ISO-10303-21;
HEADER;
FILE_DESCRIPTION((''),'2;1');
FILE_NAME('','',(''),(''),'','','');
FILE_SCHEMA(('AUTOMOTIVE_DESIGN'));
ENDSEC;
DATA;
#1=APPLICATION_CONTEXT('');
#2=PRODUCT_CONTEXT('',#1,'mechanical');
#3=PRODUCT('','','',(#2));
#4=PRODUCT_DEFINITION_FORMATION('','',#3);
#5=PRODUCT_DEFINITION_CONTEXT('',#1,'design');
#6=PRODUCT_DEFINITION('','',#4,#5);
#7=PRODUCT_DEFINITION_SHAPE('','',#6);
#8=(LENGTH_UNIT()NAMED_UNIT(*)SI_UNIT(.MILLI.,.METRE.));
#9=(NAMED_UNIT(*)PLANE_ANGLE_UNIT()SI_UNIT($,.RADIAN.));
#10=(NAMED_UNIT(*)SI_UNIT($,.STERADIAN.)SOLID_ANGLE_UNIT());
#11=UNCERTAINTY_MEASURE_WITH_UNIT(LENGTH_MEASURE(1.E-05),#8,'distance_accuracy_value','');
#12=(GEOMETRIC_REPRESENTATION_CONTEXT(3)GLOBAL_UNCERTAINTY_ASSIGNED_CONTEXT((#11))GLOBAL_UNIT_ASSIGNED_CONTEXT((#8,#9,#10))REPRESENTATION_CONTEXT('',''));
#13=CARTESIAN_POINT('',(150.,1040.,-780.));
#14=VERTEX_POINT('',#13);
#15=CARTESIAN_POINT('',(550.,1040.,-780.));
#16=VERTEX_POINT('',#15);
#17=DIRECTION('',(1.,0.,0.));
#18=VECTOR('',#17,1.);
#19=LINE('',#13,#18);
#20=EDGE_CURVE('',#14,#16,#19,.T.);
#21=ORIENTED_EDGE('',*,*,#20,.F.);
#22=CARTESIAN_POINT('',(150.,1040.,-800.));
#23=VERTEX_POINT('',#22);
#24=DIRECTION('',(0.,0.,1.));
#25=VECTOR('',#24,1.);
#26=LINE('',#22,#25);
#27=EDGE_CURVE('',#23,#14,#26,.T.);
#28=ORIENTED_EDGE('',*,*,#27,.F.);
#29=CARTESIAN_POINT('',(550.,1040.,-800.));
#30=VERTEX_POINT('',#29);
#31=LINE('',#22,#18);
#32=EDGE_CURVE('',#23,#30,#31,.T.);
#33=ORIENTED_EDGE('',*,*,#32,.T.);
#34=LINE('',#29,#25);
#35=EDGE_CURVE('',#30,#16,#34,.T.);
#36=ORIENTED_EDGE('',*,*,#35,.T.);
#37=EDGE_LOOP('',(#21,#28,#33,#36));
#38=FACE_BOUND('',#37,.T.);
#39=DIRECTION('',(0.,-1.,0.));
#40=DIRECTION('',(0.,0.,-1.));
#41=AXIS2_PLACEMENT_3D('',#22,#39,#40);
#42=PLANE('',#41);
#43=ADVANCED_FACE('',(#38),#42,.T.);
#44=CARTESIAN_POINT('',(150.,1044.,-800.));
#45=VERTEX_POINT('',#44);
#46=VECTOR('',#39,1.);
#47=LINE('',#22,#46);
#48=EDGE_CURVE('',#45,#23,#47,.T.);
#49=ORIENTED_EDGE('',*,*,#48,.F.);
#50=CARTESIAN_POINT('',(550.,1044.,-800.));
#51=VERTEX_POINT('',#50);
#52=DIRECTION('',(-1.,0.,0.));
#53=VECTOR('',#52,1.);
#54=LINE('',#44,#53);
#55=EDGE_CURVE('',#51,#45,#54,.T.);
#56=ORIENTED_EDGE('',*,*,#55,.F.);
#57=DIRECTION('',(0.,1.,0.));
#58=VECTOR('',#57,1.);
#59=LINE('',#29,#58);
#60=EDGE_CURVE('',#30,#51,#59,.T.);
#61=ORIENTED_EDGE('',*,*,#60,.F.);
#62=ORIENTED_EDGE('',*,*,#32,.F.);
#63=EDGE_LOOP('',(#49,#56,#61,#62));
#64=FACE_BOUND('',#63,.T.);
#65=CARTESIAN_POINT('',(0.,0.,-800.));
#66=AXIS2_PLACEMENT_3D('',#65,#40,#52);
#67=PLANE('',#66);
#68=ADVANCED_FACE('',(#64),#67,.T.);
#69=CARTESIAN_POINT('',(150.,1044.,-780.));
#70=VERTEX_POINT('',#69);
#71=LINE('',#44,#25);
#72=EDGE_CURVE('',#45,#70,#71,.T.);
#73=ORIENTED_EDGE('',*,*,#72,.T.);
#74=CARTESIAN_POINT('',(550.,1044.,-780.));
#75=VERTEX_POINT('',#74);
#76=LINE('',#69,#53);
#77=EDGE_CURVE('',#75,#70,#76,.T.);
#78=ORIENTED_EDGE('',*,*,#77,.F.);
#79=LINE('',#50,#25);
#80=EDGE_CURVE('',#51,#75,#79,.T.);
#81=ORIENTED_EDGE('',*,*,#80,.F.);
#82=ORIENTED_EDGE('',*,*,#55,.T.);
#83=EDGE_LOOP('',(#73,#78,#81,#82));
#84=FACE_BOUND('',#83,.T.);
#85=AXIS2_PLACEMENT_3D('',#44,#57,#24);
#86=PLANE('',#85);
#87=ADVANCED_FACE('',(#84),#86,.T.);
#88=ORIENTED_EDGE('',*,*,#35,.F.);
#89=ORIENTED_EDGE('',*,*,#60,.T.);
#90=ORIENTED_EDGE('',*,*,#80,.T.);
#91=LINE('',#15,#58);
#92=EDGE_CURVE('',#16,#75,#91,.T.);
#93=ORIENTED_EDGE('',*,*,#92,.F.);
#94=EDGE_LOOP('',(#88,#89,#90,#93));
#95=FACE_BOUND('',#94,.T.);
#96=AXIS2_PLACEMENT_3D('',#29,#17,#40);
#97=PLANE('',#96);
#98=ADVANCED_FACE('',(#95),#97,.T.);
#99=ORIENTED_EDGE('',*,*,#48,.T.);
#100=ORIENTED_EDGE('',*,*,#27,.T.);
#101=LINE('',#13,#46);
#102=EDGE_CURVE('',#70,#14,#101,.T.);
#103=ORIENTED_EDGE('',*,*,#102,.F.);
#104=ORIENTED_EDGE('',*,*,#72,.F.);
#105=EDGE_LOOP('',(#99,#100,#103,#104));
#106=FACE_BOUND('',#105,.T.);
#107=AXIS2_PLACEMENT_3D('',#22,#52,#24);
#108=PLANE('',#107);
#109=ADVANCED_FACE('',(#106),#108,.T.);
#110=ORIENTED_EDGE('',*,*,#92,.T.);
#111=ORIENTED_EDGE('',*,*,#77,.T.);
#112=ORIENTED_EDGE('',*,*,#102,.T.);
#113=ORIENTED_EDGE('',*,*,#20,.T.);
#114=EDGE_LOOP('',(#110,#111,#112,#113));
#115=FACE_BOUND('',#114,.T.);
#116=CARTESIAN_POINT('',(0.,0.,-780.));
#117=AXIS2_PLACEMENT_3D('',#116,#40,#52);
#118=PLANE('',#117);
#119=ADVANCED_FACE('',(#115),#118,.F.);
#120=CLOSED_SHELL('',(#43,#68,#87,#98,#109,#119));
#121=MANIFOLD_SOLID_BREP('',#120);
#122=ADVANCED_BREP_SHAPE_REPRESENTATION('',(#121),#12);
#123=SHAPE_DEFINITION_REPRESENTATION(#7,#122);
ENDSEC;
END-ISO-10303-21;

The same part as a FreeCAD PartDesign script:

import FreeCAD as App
import Part
import Sketcher

V = App.Vector
Q = App.Units.Quantity


def add_polygon(sketch, points):
    """Adds a closed chain of lines whose ends are joined by coincident constraints."""
    first, n = sketch.GeometryCount, len(points)
    for a, b in zip(points, points[1:] + points[:1]):
        sketch.addGeometry(Part.LineSegment(App.Vector(*a, 0), App.Vector(*b, 0)), False)
    for i in range(n):
        sketch.addConstraint(Sketcher.Constraint("Coincident", first + i, 2, first + (i + 1) % n, 1))

doc = App.newDocument("Part")
body = doc.addObject("PartDesign::Body", "Body")

# Sketch on XY plane
sketch1 = body.newObject("Sketcher::SketchObject", "Sketch")
sketch1.AttachmentSupport = (doc.getObject("XY_Plane"), [""])
sketch1.MapMode = "FlatFace"
sketch1.AttachmentOffset = App.Placement(V(0, 0, -780), App.Rotation())
add_polygon(sketch1, [(150, 1044), (150, 1040), (550, 1040), (550, 1044)])  # lines 0-3
sketch1.addConstraint(Sketcher.Constraint("Vertical", 0))
sketch1.addConstraint(Sketcher.Constraint("Horizontal", 1))
sketch1.addConstraint(Sketcher.Constraint("Vertical", 2))
sketch1.addConstraint(Sketcher.Constraint("Horizontal", 3))
sketch1.addConstraint(Sketcher.Constraint("DistanceX", 1, 1, 1, 2, Q("400 mm")))
sketch1.addConstraint(Sketcher.Constraint("DistanceY", 0, 2, 0, 1, Q("4 mm")))
sketch1.addConstraint(Sketcher.Constraint("DistanceX", -1, 1, 0, 2, Q("150 mm")))
sketch1.addConstraint(Sketcher.Constraint("DistanceY", -1, 1, 0, 2, Q("1040 mm")))
pad1 = body.newObject("PartDesign::Pad", "Pad")
pad1.Profile = sketch1
pad1.Length = 20
pad1.Reversed = True

doc.recompute()
